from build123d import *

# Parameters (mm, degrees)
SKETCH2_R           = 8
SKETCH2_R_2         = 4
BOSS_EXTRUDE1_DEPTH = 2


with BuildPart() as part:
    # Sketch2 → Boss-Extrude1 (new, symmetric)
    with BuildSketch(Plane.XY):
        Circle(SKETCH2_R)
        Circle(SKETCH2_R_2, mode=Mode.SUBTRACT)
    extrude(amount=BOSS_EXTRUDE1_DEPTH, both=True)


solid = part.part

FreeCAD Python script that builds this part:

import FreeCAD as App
import Part
import Sketcher
Q = App.Units.Quantity

doc = App.newDocument("Part")
params = doc.addObject("Spreadsheet::Sheet", "Params")
for row, (alias, value) in enumerate([
    ("sketch1_diameter", "16 mm"),
    ("sketch1_diameter2", "8 mm"),
    ("pad1_length", "4 mm"),
], start=1):
    params.set(f"A{row}", alias)
    params.set(f"B{row}", "=" + value)
    params.setAlias(f"B{row}", alias)

body = doc.addObject("PartDesign::Body", "Body")

sketch1 = doc.addObject("Sketcher::SketchObject", "Sketch")
body.addObject(sketch1)
sketch1.AttachmentSupport = (doc.XY_Plane, [""])
sketch1.MapMode = "FlatFace"
sketch1.addGeometry([
    Part.Circle(App.Vector(0, 0, 0), App.Vector(0, 0, 1), 8),
    Part.Circle(App.Vector(0, 0, 0), App.Vector(0, 0, 1), 4),
], False)
sketch1.addConstraint([
    Sketcher.Constraint("Coincident", 0, 3, -1, 1),
    Sketcher.Constraint("Coincident", 1, 3, -1, 1),
    Sketcher.Constraint("Diameter", 0, Q("16 mm")),
    Sketcher.Constraint("Diameter", 1, Q("8 mm")),
])
sketch1.setExpression("Constraints[2]", "Params.sketch1_diameter")
sketch1.setExpression("Constraints[3]", "Params.sketch1_diameter2")
pad1 = doc.addObject("PartDesign::Pad", "Pad")
body.addObject(pad1)
pad1.Profile = sketch1
pad1.setExpression("Length", "Params.pad1_length")
pad1.Midplane = True

doc.recompute()
